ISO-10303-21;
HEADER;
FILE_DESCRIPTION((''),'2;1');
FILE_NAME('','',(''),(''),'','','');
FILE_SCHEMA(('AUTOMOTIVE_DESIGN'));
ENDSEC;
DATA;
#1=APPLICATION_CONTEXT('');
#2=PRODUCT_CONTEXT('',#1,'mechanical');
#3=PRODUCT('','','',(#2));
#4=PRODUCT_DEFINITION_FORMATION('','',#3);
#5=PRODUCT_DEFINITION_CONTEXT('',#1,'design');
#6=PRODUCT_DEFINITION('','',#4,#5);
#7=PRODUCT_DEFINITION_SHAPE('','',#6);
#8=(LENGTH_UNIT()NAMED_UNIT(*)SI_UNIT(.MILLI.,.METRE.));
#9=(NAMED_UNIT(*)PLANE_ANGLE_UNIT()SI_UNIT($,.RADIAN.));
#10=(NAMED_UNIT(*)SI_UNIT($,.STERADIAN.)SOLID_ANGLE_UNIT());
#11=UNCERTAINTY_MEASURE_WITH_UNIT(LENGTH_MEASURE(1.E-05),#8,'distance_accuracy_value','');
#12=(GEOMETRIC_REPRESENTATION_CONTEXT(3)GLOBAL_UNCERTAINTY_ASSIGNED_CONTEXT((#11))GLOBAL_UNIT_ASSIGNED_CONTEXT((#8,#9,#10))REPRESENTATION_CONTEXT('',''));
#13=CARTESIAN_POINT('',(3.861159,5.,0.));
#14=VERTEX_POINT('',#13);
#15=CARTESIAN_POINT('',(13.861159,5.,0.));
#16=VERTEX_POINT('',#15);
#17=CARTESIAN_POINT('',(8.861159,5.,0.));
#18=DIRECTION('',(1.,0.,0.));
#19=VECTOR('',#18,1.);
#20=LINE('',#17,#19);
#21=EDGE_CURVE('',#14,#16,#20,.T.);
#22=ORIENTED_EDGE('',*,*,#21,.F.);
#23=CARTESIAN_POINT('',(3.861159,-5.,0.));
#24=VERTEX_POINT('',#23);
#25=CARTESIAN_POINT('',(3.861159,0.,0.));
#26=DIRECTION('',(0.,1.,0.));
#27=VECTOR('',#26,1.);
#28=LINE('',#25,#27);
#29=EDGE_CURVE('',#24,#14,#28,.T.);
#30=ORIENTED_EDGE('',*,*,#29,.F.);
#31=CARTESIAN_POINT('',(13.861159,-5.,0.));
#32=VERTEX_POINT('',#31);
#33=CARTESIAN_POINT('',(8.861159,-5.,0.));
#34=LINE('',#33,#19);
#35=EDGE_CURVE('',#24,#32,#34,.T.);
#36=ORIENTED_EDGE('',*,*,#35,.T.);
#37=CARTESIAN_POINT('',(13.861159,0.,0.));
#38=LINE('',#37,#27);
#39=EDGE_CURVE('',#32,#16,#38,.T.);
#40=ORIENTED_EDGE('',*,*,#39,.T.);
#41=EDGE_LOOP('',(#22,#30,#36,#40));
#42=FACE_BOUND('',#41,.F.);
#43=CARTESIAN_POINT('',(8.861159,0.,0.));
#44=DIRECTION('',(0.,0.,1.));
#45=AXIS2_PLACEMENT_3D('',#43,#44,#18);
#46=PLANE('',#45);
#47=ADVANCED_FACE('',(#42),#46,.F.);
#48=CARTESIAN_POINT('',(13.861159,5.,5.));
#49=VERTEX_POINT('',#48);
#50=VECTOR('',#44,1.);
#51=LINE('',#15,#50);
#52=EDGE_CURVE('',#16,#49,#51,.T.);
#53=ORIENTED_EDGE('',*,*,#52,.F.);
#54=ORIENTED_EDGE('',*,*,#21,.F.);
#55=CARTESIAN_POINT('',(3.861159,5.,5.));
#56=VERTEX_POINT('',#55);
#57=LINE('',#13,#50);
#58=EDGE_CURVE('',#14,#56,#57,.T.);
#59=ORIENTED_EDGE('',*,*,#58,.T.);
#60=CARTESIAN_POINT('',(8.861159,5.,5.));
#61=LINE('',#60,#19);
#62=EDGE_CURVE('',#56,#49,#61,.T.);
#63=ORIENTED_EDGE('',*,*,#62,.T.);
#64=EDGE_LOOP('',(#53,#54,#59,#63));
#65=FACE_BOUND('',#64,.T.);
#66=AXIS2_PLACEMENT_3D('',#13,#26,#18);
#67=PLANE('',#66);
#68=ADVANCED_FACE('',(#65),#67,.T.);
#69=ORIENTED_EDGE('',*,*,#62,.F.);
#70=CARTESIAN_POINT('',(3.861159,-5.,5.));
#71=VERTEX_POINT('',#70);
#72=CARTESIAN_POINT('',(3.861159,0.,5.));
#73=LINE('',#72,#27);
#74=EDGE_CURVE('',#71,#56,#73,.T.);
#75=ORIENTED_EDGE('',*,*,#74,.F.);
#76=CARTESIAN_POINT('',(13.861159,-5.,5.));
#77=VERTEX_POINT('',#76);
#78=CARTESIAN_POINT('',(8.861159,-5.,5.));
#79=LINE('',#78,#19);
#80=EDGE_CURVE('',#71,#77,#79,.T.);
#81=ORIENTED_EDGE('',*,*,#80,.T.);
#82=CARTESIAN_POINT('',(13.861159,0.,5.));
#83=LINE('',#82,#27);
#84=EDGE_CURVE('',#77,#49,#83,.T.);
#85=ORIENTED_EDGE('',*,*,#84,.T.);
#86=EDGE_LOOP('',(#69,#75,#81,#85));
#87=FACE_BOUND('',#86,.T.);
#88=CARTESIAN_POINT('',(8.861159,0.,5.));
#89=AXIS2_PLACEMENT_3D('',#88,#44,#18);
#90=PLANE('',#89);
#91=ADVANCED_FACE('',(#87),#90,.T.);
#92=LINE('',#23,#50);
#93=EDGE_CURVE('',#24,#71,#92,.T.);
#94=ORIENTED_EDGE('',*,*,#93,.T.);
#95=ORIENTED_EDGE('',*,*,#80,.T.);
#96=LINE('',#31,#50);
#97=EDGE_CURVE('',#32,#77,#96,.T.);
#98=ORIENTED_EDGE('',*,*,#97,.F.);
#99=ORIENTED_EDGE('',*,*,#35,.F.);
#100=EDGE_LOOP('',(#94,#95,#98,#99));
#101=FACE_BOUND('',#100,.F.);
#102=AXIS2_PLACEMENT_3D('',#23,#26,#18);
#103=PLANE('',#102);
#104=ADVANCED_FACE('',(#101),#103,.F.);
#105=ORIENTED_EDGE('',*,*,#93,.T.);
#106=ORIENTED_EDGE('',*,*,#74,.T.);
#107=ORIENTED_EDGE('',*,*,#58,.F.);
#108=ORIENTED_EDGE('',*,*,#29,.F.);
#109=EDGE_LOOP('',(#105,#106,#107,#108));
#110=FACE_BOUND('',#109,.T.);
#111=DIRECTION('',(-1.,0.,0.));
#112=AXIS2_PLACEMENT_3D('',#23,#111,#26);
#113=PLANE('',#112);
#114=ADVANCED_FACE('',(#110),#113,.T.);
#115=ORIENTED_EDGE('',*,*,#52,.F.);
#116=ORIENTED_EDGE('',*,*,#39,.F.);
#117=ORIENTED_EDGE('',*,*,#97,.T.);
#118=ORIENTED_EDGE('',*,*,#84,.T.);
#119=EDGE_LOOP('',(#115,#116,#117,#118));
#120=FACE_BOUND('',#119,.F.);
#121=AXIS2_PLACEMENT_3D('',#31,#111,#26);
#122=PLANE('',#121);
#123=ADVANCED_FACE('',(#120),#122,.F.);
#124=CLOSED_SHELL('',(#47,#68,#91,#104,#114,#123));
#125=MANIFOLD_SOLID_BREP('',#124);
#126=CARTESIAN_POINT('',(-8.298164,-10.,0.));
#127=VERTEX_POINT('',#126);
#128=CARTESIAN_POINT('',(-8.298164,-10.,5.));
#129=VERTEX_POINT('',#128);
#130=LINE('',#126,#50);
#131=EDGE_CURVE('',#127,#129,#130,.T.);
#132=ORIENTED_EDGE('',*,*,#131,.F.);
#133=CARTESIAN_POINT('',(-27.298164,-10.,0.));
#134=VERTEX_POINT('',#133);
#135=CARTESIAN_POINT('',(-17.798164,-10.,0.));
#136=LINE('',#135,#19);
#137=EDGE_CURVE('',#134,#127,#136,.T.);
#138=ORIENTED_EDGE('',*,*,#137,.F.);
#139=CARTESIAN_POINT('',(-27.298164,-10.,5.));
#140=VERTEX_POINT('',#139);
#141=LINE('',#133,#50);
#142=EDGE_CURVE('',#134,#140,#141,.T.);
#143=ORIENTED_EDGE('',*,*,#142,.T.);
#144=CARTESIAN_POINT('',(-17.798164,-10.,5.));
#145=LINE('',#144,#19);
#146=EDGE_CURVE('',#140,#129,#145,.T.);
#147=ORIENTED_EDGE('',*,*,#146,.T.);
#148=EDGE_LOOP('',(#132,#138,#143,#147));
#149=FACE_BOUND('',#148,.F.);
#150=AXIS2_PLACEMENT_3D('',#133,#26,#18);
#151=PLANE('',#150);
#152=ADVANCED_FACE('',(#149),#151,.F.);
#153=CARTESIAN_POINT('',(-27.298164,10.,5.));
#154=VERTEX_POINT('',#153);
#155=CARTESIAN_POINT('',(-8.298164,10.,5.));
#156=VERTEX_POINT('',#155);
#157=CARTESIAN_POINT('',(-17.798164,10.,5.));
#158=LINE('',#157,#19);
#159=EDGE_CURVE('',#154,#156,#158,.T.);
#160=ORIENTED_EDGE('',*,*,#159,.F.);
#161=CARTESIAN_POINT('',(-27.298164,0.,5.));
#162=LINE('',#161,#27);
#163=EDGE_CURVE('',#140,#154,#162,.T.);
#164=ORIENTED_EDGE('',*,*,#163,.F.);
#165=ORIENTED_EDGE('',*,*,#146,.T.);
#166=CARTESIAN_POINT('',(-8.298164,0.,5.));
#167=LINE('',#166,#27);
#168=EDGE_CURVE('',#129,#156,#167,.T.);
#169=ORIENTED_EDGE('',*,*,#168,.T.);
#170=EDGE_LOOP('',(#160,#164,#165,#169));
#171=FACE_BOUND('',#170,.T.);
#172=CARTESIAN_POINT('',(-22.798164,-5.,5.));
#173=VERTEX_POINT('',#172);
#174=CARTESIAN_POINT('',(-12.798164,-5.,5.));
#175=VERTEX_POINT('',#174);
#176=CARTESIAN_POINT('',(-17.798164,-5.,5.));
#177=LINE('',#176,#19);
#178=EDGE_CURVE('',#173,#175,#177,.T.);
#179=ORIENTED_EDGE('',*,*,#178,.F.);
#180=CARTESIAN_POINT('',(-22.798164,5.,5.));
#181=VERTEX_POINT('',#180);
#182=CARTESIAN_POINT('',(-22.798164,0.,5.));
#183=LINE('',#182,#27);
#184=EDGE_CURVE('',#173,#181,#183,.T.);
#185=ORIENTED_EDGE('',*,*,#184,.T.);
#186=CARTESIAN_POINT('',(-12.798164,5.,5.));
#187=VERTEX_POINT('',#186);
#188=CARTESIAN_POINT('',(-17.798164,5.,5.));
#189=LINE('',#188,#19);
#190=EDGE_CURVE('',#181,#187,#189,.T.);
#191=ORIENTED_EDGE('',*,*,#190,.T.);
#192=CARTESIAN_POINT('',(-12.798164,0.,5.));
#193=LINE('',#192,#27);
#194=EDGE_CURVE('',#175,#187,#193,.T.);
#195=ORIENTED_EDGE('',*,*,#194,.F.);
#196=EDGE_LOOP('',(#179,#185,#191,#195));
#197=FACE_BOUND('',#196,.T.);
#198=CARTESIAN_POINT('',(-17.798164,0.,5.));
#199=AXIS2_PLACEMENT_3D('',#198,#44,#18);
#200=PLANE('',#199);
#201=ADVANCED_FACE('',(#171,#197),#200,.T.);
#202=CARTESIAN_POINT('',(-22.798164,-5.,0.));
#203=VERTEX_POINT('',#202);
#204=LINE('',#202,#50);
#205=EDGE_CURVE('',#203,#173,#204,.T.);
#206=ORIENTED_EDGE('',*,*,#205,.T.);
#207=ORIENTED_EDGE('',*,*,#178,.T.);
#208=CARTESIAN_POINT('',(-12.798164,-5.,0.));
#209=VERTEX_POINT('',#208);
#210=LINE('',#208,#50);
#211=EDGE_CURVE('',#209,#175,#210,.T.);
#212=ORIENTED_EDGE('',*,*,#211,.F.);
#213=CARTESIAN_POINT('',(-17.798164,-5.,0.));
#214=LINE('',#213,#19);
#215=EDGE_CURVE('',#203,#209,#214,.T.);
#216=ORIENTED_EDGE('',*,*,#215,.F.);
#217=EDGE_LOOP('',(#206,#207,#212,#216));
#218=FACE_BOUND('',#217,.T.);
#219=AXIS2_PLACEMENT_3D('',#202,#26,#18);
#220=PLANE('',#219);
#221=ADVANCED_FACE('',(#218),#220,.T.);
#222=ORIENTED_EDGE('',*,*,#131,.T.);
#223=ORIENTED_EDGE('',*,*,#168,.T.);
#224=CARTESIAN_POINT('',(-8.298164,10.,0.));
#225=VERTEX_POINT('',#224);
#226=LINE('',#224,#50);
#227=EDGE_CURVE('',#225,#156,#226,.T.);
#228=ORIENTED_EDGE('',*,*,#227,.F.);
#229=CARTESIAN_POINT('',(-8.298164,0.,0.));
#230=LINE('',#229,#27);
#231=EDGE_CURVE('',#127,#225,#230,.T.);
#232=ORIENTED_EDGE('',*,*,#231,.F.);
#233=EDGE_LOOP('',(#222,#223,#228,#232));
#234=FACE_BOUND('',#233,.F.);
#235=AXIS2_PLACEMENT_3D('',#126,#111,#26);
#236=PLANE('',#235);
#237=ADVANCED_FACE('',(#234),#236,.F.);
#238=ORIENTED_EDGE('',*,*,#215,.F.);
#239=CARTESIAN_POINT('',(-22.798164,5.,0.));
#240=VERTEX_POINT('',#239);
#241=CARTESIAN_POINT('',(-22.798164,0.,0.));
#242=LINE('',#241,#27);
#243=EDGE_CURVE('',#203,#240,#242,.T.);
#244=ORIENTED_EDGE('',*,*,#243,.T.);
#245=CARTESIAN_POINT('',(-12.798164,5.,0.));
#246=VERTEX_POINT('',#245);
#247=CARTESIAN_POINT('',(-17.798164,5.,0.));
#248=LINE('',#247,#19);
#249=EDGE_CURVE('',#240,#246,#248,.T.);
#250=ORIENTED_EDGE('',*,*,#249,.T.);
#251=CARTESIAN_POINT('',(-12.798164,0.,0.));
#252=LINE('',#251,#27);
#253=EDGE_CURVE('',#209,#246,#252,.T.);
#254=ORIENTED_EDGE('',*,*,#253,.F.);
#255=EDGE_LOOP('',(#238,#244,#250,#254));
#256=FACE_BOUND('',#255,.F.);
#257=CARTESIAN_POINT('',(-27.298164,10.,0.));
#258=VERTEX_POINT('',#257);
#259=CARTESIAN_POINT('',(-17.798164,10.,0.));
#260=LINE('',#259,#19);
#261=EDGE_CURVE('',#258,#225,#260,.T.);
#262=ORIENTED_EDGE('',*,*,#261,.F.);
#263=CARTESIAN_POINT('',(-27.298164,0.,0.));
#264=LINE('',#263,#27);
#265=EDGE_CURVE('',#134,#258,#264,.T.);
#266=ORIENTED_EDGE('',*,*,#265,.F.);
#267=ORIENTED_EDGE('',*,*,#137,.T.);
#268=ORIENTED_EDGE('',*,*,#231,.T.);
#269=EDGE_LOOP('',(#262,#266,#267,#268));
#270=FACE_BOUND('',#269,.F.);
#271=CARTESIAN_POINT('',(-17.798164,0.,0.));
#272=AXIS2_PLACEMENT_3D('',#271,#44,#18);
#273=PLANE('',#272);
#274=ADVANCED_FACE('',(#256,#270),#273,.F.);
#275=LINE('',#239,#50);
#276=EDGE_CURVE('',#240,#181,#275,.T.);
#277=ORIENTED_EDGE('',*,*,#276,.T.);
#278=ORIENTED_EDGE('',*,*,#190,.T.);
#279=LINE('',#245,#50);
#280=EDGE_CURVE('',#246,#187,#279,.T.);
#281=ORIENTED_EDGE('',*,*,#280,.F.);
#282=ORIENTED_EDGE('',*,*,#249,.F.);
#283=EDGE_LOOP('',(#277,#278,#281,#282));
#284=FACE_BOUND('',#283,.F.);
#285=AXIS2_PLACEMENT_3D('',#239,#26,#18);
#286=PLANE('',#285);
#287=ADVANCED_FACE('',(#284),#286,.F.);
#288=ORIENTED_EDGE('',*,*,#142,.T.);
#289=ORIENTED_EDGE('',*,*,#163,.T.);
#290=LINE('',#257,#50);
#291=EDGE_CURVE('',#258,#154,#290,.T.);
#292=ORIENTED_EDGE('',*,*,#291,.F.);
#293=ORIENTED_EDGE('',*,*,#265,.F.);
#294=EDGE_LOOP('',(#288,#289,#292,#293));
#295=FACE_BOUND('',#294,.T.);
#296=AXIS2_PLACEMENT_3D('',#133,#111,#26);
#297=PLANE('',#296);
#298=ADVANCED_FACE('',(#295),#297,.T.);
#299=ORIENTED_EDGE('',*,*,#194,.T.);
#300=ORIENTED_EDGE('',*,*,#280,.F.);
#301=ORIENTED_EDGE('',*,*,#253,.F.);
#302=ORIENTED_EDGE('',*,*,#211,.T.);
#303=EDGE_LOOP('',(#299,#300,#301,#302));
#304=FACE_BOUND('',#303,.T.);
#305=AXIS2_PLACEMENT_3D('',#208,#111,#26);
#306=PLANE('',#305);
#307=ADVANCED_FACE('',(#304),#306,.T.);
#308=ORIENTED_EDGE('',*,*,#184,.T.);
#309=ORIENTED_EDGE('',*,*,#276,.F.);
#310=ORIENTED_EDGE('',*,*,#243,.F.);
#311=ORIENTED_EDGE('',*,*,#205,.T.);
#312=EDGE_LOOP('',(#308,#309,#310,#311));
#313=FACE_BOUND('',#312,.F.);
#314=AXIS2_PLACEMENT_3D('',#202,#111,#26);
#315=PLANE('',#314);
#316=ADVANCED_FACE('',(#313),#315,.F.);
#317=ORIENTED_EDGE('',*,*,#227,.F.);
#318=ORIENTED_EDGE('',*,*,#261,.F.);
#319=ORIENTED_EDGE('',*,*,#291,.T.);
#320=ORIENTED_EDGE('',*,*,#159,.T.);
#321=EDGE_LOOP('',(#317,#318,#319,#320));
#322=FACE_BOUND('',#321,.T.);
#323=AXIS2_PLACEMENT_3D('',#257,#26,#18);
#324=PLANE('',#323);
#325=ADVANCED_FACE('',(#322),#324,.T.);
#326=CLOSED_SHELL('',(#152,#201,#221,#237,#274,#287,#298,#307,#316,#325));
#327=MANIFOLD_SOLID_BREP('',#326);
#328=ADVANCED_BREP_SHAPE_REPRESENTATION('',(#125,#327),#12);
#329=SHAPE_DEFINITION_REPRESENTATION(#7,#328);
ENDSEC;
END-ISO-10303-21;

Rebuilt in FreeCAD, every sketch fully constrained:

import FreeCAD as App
import Part
import Sketcher
from FreeCAD import Vector

doc = App.newDocument("Part")
body = doc.addObject("PartDesign::Body", "Body")
body.AllowCompound = True

# Sketch on XY plane
sketch1 = body.newObject("Sketcher::SketchObject", "Sketch")
sketch1.AttachmentSupport = (doc.getObject("XY_Plane"), [""])
sketch1.MapMode = "FlatFace"
sketch1.addGeometry([
    Part.LineSegment(Vector(-27, 10, 0), Vector(-27, -10, 0)),  # 0
    Part.LineSegment(Vector(-27, -10, 0), Vector(-8, -10, 0)),  # 1
    Part.LineSegment(Vector(-8, -10, 0), Vector(-8, 10, 0)),  # 2
    Part.LineSegment(Vector(-8, 10, 0), Vector(-27, 10, 0)),  # 3
    Part.LineSegment(Vector(-13, -5, 0), Vector(-23, -5, 0)),  # 4
    Part.LineSegment(Vector(-23, -5, 0), Vector(-23, 5, 0)),  # 5
    Part.LineSegment(Vector(-23, 5, 0), Vector(-13, 5, 0)),  # 6
    Part.LineSegment(Vector(-13, 5, 0), Vector(-13, -5, 0)),  # 7
    Part.LineSegment(Vector(4, 5, 0), Vector(4, -5, 0)),  # 8
    Part.LineSegment(Vector(4, -5, 0), Vector(14, -5, 0)),  # 9
    Part.LineSegment(Vector(14, -5, 0), Vector(14, 5, 0)),  # 10
    Part.LineSegment(Vector(14, 5, 0), Vector(4, 5, 0)),  # 11
], False)
sketch1.addConstraint([
    Sketcher.Constraint("Coincident", 0, 2, 1, 1),
    Sketcher.Constraint("Coincident", 1, 2, 2, 1),
    Sketcher.Constraint("Coincident", 2, 2, 3, 1),
    Sketcher.Constraint("Coincident", 3, 2, 0, 1),
    Sketcher.Constraint("Coincident", 4, 2, 5, 1),
    Sketcher.Constraint("Coincident", 5, 2, 6, 1),
    Sketcher.Constraint("Coincident", 6, 2, 7, 1),
    Sketcher.Constraint("Coincident", 7, 2, 4, 1),
    Sketcher.Constraint("Coincident", 8, 2, 9, 1),
    Sketcher.Constraint("Coincident", 9, 2, 10, 1),
    Sketcher.Constraint("Coincident", 10, 2, 11, 1),
    Sketcher.Constraint("Coincident", 11, 2, 8, 1),
    Sketcher.Constraint("Vertical", 0),
    Sketcher.Constraint("Horizontal", 1),
    Sketcher.Constraint("Vertical", 2),
    Sketcher.Constraint("Horizontal", 3),
    Sketcher.Constraint("Horizontal", 4),
    Sketcher.Constraint("Vertical", 5),
    Sketcher.Constraint("Horizontal", 6),
    Sketcher.Constraint("Vertical", 7),
    Sketcher.Constraint("Vertical", 8),
    Sketcher.Constraint("Horizontal", 9),
    Sketcher.Constraint("Vertical", 10),
    Sketcher.Constraint("Horizontal", 11),
    Sketcher.Constraint("Horizontal", 7, 2, 8, 2),
    Sketcher.Constraint("Horizontal", 6, 2, 10, 2),
    Sketcher.Constraint("Equal", 6, 9),
    Sketcher.Constraint("Equal", 11, 5),
    Sketcher.Constraint("DistanceX", 1, 1, 1, 2, 19.0),
    Sketcher.Constraint("DistanceX", 4, 2, 4, 1, 10.0),
    Sketcher.Constraint("DistanceY", 0, 2, 0, 1, 20.0),
    Sketcher.Constraint("DistanceY", 0, 2, -1, 1, 10.0),
    Sketcher.Constraint("DistanceY", 4, 2, -1, 1, 5.0),
    Sketcher.Constraint("DistanceX", 0, 2, 4, 2, 4.5),
    Sketcher.Constraint("DistanceX", -1, 1, 8, 2, 3.861159),
    Sketcher.Constraint("DistanceX", 0, 2, -1, 1, 27.298164),
])
pad1 = body.newObject("PartDesign::Pad", "Pad")
pad1.Profile = sketch1
pad1.Length = 5

doc.recompute()
